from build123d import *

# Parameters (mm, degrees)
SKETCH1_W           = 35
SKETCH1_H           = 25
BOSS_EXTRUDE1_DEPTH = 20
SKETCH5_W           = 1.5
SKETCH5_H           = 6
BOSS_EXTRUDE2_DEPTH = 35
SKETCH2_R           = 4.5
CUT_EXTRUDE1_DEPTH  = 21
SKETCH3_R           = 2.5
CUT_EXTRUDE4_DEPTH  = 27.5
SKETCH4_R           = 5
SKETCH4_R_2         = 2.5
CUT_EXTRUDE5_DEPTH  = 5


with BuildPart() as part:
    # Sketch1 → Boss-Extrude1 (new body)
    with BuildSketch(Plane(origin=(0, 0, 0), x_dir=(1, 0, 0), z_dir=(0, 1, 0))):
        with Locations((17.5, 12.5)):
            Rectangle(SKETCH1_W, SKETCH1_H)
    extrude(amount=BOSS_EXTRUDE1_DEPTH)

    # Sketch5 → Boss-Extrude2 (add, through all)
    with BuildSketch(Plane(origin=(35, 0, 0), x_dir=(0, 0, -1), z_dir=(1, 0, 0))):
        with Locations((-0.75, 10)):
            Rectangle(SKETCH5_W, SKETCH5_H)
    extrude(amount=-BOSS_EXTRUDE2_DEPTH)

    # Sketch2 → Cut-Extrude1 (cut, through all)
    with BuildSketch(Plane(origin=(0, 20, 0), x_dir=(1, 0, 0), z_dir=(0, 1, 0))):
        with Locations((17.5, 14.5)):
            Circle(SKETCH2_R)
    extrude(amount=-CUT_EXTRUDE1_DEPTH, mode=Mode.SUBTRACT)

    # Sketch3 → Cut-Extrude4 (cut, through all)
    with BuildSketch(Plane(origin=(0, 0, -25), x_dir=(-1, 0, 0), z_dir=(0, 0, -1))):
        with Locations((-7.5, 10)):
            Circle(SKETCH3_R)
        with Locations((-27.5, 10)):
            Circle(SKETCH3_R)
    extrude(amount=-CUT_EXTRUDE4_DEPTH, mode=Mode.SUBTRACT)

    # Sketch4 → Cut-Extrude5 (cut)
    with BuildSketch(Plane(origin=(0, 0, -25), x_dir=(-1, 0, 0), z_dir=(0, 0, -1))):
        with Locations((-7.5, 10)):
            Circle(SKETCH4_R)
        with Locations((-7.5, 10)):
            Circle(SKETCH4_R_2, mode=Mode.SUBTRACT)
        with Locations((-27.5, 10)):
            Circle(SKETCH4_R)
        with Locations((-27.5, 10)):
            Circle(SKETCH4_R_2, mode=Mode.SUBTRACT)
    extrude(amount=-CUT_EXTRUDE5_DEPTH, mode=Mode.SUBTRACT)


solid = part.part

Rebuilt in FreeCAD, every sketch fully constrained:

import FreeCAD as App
import Part
import Sketcher
from FreeCAD import Vector
Q = App.Units.Quantity

doc = App.newDocument("Part")
body = doc.addObject("PartDesign::Body", "Body")

sketch1 = doc.addObject("Sketcher::SketchObject", "Sketch")
body.addObject(sketch1)
sketch1.AttachmentSupport = (doc.XZ_Plane, [""])
sketch1.MapMode = "FlatFace"
sketch1.addGeometry([
    Part.LineSegment(Vector(0, -25, 0), Vector(0, 0, 0)),
    Part.LineSegment(Vector(0, 0, 0), Vector(35, 0, 0)),
    Part.LineSegment(Vector(35, 0, 0), Vector(35, -25, 0)),
    Part.LineSegment(Vector(35, -25, 0), Vector(0, -25, 0)),
], False)
sketch1.addConstraint([
    Sketcher.Constraint("Coincident", 0, 2, 1, 1),
    Sketcher.Constraint("Coincident", 1, 2, 2, 1),
    Sketcher.Constraint("Coincident", 2, 2, 3, 1),
    Sketcher.Constraint("Coincident", 3, 2, 0, 1),
    Sketcher.Constraint("Vertical", 0),
    Sketcher.Constraint("Horizontal", 1),
    Sketcher.Constraint("Vertical", 2),
    Sketcher.Constraint("Horizontal", 3),
    Sketcher.Constraint("Coincident", 0, 2, -1, 1),
    Sketcher.Constraint("DistanceX", 1, 1, 1, 2, Q("35 mm")),
    Sketcher.Constraint("DistanceY", 0, 1, 0, 2, Q("25 mm")),
])
pad1 = doc.addObject("PartDesign::Pad", "Pad")
body.addObject(pad1)
pad1.Profile = sketch1
pad1.Length = 20
pad1.Reversed = True

sketch2 = doc.addObject("Sketcher::SketchObject", "Sketch001")
body.addObject(sketch2)
sketch2.AttachmentSupport = (doc.YZ_Plane, [""])
sketch2.MapMode = "FlatFace"
sketch2.AttachmentOffset = App.Placement(Vector(0, 0, 35), App.Rotation())
sketch2.addGeometry([
    Part.LineSegment(Vector(13, 1.5, 0), Vector(7, 1.5, 0)),
    Part.LineSegment(Vector(7, 1.5, 0), Vector(7, 0, 0)),
    Part.LineSegment(Vector(7, 0, 0), Vector(13, 0, 0)),
    Part.LineSegment(Vector(13, 0, 0), Vector(13, 1.5, 0)),
], False)
sketch2.addConstraint([
    Sketcher.Constraint("Coincident", 0, 2, 1, 1),
    Sketcher.Constraint("Coincident", 1, 2, 2, 1),
    Sketcher.Constraint("Coincident", 2, 2, 3, 1),
    Sketcher.Constraint("Coincident", 3, 2, 0, 1),
    Sketcher.Constraint("Horizontal", 0),
    Sketcher.Constraint("Vertical", 1),
    Sketcher.Constraint("Horizontal", 2),
    Sketcher.Constraint("Vertical", 3),
    Sketcher.Constraint("PointOnObject", 1, 2, -1),
    Sketcher.Constraint("DistanceX", 0, 2, 0, 1, Q("6 mm")),
    Sketcher.Constraint("DistanceY", 1, 2, 1, 1, Q("1.5 mm")),
    Sketcher.Constraint("DistanceX", -1, 1, 0, 2, Q("7 mm")),
])
pad2 = doc.addObject("PartDesign::Pad", "Pad001")
body.addObject(pad2)
pad2.Profile = sketch2
pad2.Length = 35
pad2.Reversed = True

sketch3 = doc.addObject("Sketcher::SketchObject", "Sketch002")
body.addObject(sketch3)
sketch3.AttachmentSupport = (doc.XZ_Plane, [""])
sketch3.MapMode = "FlatFace"
sketch3.AttachmentOffset = App.Placement(Vector(0, 0, -20), App.Rotation())
sketch3.addGeometry(Part.Circle(Vector(17.5, -14.5, 0), Vector(0, 0, 1), 4.5), False)
sketch3.addConstraint([
    Sketcher.Constraint("Diameter", 0, Q("9 mm")),
    Sketcher.Constraint("DistanceX", -1, 1, 0, 3, Q("17.5 mm")),
    Sketcher.Constraint("DistanceY", 0, 3, -1, 1, Q("14.5 mm")),
])
pocket1 = doc.addObject("PartDesign::Pocket", "Pocket")
body.addObject(pocket1)
pocket1.Profile = sketch3
pocket1.Type = "ThroughAll"
pocket1.Reversed = True

sketch4 = doc.addObject("Sketcher::SketchObject", "Sketch003")
body.addObject(sketch4)
sketch4.AttachmentSupport = (doc.XY_Plane, [""])
sketch4.MapMode = "FlatFace"
sketch4.AttachmentOffset = App.Placement(Vector(0, 0, -25), App.Rotation())
sketch4.addGeometry([
    Part.Circle(Vector(7.5, 10, 0), Vector(0, 0, 1), 2.5),
    Part.Circle(Vector(27.5, 10, 0), Vector(0, 0, 1), 2.5),
], False)
sketch4.addConstraint([
    Sketcher.Constraint("Equal", 0, 1),
    Sketcher.Constraint("Horizontal", 0, 3, 1, 3),
    Sketcher.Constraint("Diameter", 0, Q("5 mm")),
    Sketcher.Constraint("DistanceY", -1, 1, 0, 3, Q("10 mm")),
    Sketcher.Constraint("DistanceX", 0, 3, 1, 3, Q("20 mm")),
    Sketcher.Constraint("DistanceX", -1, 1, 0, 3, Q("7.5 mm")),
])
pocket2 = doc.addObject("PartDesign::Pocket", "Pocket001")
body.addObject(pocket2)
pocket2.Profile = sketch4
pocket2.Type = "ThroughAll"
pocket2.Reversed = True

sketch5 = doc.addObject("Sketcher::SketchObject", "Sketch004")
body.addObject(sketch5)
sketch5.AttachmentSupport = (doc.XY_Plane, [""])
sketch5.MapMode = "FlatFace"
sketch5.AttachmentOffset = App.Placement(Vector(0, 0, -25), App.Rotation())
sketch5.addGeometry([
    Part.Circle(Vector(7.5, 10, 0), Vector(0, 0, 1), 5),
    Part.Circle(Vector(7.5, 10, 0), Vector(0, 0, 1), 2.5),
    Part.Circle(Vector(27.5, 10, 0), Vector(0, 0, 1), 5),
    Part.Circle(Vector(27.5, 10, 0), Vector(0, 0, 1), 2.5),
], False)
sketch5.addConstraint([
    Sketcher.Constraint("Coincident", 1, 3, 0, 3),
    Sketcher.Constraint("Coincident", 3, 3, 2, 3),
    Sketcher.Constraint("Equal", 0, 2),
    Sketcher.Constraint("Equal", 1, 3),
    Sketcher.Constraint("Horizontal", 1, 3, 2, 3),
    Sketcher.Constraint("Diameter", 0, Q("10 mm")),
    Sketcher.Constraint("Diameter", 1, Q("5 mm")),
    Sketcher.Constraint("DistanceY", -1, 1, 0, 3, Q("10 mm")),
    Sketcher.Constraint("DistanceX", 0, 3, 2, 3, Q("20 mm")),
    Sketcher.Constraint("DistanceX", -1, 1, 0, 3, Q("7.5 mm")),
])
pocket3 = doc.addObject("PartDesign::Pocket", "Pocket002")
body.addObject(pocket3)
pocket3.Profile = sketch5
pocket3.Length = 5
pocket3.Reversed = True

doc.recompute()
